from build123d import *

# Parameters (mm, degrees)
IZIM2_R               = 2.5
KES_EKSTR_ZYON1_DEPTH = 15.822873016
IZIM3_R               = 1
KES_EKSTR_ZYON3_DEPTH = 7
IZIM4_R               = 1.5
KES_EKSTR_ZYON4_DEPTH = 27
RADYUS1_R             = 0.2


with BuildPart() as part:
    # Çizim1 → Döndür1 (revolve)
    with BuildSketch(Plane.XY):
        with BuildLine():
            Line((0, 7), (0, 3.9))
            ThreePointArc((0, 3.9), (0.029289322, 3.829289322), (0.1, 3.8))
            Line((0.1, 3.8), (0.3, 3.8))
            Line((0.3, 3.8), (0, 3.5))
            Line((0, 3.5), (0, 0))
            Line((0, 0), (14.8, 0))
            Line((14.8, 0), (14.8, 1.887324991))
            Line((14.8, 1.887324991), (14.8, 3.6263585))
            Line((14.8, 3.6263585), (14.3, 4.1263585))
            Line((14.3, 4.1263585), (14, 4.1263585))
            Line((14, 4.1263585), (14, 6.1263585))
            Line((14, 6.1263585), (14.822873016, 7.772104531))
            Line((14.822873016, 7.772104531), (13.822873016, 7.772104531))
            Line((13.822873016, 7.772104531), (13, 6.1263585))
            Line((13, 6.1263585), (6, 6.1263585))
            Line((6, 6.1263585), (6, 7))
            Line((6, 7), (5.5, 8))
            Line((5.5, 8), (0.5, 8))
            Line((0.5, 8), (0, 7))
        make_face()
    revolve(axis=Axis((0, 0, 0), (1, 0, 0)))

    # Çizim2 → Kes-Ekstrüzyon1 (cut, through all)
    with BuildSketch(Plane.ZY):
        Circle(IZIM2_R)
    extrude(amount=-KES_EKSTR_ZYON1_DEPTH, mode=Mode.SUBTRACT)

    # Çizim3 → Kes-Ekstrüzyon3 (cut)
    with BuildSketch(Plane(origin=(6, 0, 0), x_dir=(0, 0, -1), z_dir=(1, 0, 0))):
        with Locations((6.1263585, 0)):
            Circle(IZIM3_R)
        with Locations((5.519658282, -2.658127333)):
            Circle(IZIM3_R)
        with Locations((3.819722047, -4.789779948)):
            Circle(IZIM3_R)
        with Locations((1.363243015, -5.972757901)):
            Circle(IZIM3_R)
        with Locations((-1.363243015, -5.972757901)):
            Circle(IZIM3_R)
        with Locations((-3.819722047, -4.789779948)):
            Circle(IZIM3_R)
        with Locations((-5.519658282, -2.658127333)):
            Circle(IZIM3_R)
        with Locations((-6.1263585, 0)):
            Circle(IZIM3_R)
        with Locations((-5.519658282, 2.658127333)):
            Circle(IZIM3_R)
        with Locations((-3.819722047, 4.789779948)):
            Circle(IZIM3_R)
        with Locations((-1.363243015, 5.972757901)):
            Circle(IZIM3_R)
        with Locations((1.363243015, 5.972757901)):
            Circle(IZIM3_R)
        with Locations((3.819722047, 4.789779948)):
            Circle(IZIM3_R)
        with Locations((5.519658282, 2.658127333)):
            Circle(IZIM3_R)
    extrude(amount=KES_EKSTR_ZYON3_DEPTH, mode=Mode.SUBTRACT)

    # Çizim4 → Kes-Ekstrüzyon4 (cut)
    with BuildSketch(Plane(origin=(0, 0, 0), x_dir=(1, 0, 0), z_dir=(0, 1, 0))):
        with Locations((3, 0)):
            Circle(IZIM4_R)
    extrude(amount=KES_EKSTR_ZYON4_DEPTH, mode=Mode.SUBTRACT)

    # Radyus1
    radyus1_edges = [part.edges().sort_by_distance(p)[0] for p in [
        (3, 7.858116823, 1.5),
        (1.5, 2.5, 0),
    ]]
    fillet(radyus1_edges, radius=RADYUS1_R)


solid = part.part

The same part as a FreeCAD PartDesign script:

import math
import FreeCAD as App
import Part
import Sketcher
from FreeCAD import Vector
Q = App.Units.Quantity


def edges_at(feature, points):
    """Names of the edges that pass closest to the given points."""
    edges = feature.Shape.Edges
    near = lambda p: min(range(len(edges)), key=lambda i: edges[i].distToShape(Part.Vertex(*p))[0])
    return sorted({f"Edge{near(p) + 1}" for p in points})

doc = App.newDocument("Part")
body = doc.addObject("PartDesign::Body", "Body")

# Sketch on XY plane
sketch1 = body.newObject("Sketcher::SketchObject", "Sketch")
sketch1.AttachmentSupport = (doc.getObject("XY_Plane"), [""])
sketch1.MapMode = "FlatFace"
sketch1.addGeometry([
    Part.LineSegment(Vector(0, 7, 0), Vector(0, 3.9, 0)),  # 0
    Part.ArcOfCircle(Part.Circle(Vector(0.1, 3.9, 0), Vector(0, 0, 1), 0.1), math.radians(180), math.radians(270)),  # 1
    Part.LineSegment(Vector(0.1, 3.8, 0), Vector(0.3, 3.8, 0)),  # 2
    Part.LineSegment(Vector(0.3, 3.8, 0), Vector(0, 3.5, 0)),  # 3
    Part.LineSegment(Vector(0, 3.5, 0), Vector(0, 0, 0)),  # 4
    Part.LineSegment(Vector(0, 0, 0), Vector(14.8, 0, 0)),  # 5
    Part.LineSegment(Vector(14.8, 0, 0), Vector(14.8, 3.63, 0)),  # 6
    Part.LineSegment(Vector(14.8, 3.63, 0), Vector(14.3, 4.13, 0)),  # 7
    Part.LineSegment(Vector(14.3, 4.13, 0), Vector(14, 4.13, 0)),  # 8
    Part.LineSegment(Vector(14, 4.13, 0), Vector(14, 6.13, 0)),  # 9
    Part.LineSegment(Vector(14, 6.13, 0), Vector(14.82, 7.77, 0)),  # 10
    Part.LineSegment(Vector(14.82, 7.77, 0), Vector(13.82, 7.77, 0)),  # 11
    Part.LineSegment(Vector(13.82, 7.77, 0), Vector(13, 6.13, 0)),  # 12
    Part.LineSegment(Vector(13, 6.13, 0), Vector(6, 6.13, 0)),  # 13
    Part.LineSegment(Vector(6, 6.13, 0), Vector(6, 7, 0)),  # 14
    Part.LineSegment(Vector(6, 7, 0), Vector(5.5, 8, 0)),  # 15
    Part.LineSegment(Vector(5.5, 8, 0), Vector(0.5, 8, 0)),  # 16
    Part.LineSegment(Vector(0.5, 8, 0), Vector(0, 7, 0)),  # 17
], False)
sketch1.addConstraint([
    Sketcher.Constraint("Tangent", 0, 2, 1, 1),
    Sketcher.Constraint("Tangent", 1, 2, 2, 1),
    Sketcher.Constraint("Coincident", 2, 2, 3, 1),
    Sketcher.Constraint("Coincident", 3, 2, 4, 1),
    Sketcher.Constraint("Coincident", 4, 2, 5, 1),
    Sketcher.Constraint("Coincident", 5, 2, 6, 1),
    Sketcher.Constraint("Coincident", 6, 2, 7, 1),
    Sketcher.Constraint("Coincident", 7, 2, 8, 1),
    Sketcher.Constraint("Coincident", 8, 2, 9, 1),
    Sketcher.Constraint("Coincident", 9, 2, 10, 1),
    Sketcher.Constraint("Coincident", 10, 2, 11, 1),
    Sketcher.Constraint("Coincident", 11, 2, 12, 1),
    Sketcher.Constraint("Coincident", 12, 2, 13, 1),
    Sketcher.Constraint("Coincident", 13, 2, 14, 1),
    Sketcher.Constraint("Coincident", 14, 2, 15, 1),
    Sketcher.Constraint("Coincident", 15, 2, 16, 1),
    Sketcher.Constraint("Coincident", 16, 2, 17, 1),
    Sketcher.Constraint("Coincident", 17, 2, 0, 1),
    Sketcher.Constraint("Vertical", 0),
    Sketcher.Constraint("Horizontal", 2),
    Sketcher.Constraint("Vertical", 4),
    Sketcher.Constraint("Horizontal", 5),
    Sketcher.Constraint("Vertical", 6),
    Sketcher.Constraint("Horizontal", 8),
    Sketcher.Constraint("Vertical", 9),
    Sketcher.Constraint("Horizontal", 11),
    Sketcher.Constraint("Horizontal", 13),
    Sketcher.Constraint("Vertical", 14),
    Sketcher.Constraint("Horizontal", 16),
    Sketcher.Constraint("Coincident", 4, 2, -1, 1),
    Sketcher.Constraint("PointOnObject", 0, 2, -2),
    Sketcher.Constraint("Perpendicular", 3, 7),
    Sketcher.Constraint("Parallel", 10, 12),
    Sketcher.Constraint("Parallel", 12, 17),
    Sketcher.Constraint("Horizontal", 9, 2, 12, 2),
    Sketcher.Constraint("Horizontal", 14, 2, 17, 2),
    Sketcher.Constraint("Equal", 15, 17),
    Sketcher.Constraint("Radius", 1, Q("0.1 mm")),
    Sketcher.Constraint("DistanceX", 11, 2, 11, 1, Q("1 mm")),
    Sketcher.Constraint("DistanceX", 13, 2, 13, 1, Q("7 mm")),
    Sketcher.Constraint("DistanceX", 16, 2, 16, 1, Q("5 mm")),
    Sketcher.Constraint("DistanceY", 9, 1, 9, 2, Q("2 mm")),
    Sketcher.Constraint("Angle", 3, Q("-135 deg")),
    Sketcher.Constraint("DistanceX", 2, 1, 2, 2, Q("0.2 mm")),
    Sketcher.Constraint("DistanceX", 5, 1, 5, 2, Q("14.8 mm")),
    Sketcher.Constraint("DistanceX", 8, 2, 8, 1, Q("0.3 mm")),
    Sketcher.Constraint("DistanceY", 0, 2, 0, 1, Q("3.1 mm")),
    Sketcher.Constraint("DistanceY", 4, 2, 4, 1, Q("3.5 mm")),
    Sketcher.Constraint("DistanceX", -1, 1, 8, 2, Q("14 mm")),
    Sketcher.Constraint("DistanceY", -1, 1, 15, 2, Q("8 mm")),
    Sketcher.Constraint("Distance", 10, Q("1.84 mm")),
    Sketcher.Constraint("DistanceY", 6, 1, 6, 2, Q("3.626358 mm")),
])
revolution = body.newObject("PartDesign::Revolution", "Revolution")
revolution.Profile = sketch1
revolution.ReferenceAxis = (sketch1, ["H_Axis"])
revolution.Angle = 360

# Sketch on YZ plane
sketch2 = body.newObject("Sketcher::SketchObject", "Sketch001")
sketch2.AttachmentSupport = (doc.getObject("YZ_Plane"), [""])
sketch2.MapMode = "FlatFace"
sketch2.addGeometry(Part.Circle(Vector(0, 0, 0), Vector(0, 0, 1), 2.5), False)
sketch2.addConstraint([
    Sketcher.Constraint("Coincident", 0, 3, -1, 1),
    Sketcher.Constraint("Diameter", 0, Q("5 mm")),
])
pocket1 = body.newObject("PartDesign::Pocket", "Pocket")
pocket1.Profile = sketch2
pocket1.Type = "ThroughAll"
pocket1.Reversed = True

# Sketch on YZ plane
sketch3 = body.newObject("Sketcher::SketchObject", "Sketch002")
sketch3.AttachmentSupport = (doc.getObject("YZ_Plane"), [""])
sketch3.MapMode = "FlatFace"
sketch3.AttachmentOffset = App.Placement(Vector(0, 0, 6), App.Rotation())
sketch3.addGeometry([
    Part.Circle(Vector(0, -6.1, 0), Vector(0, 0, 1), 1),  # 0
    Part.Circle(Vector(-2.7, -5.5, 0), Vector(0, 0, 1), 1),  # 1
    Part.Circle(Vector(-4.8, -3.8, 0), Vector(0, 0, 1), 1),  # 2
    Part.Circle(Vector(-6, -1.4, 0), Vector(0, 0, 1), 1),  # 3
    Part.Circle(Vector(-6, 1.4, 0), Vector(0, 0, 1), 1),  # 4
    Part.Circle(Vector(-4.8, 3.8, 0), Vector(0, 0, 1), 1),  # 5
    Part.Circle(Vector(-2.7, 5.5, 0), Vector(0, 0, 1), 1),  # 6
    Part.Circle(Vector(0, 6.1, 0), Vector(0, 0, 1), 1),  # 7
    Part.Circle(Vector(2.7, 5.5, 0), Vector(0, 0, 1), 1),  # 8
    Part.Circle(Vector(4.8, 3.8, 0), Vector(0, 0, 1), 1),  # 9
    Part.Circle(Vector(6, 1.4, 0), Vector(0, 0, 1), 1),  # 10
    Part.Circle(Vector(6, -1.4, 0), Vector(0, 0, 1), 1),  # 11
    Part.Circle(Vector(4.8, -3.8, 0), Vector(0, 0, 1), 1),  # 12
    Part.Circle(Vector(2.7, -5.5, 0), Vector(0, 0, 1), 1),  # 13
], False)
sketch3.addConstraint([
    Sketcher.Constraint("Equal", 0, 1),
    Sketcher.Constraint("Equal", 1, 2),
    Sketcher.Constraint("Equal", 2, 3),
    Sketcher.Constraint("Equal", 3, 4),
    Sketcher.Constraint("Equal", 4, 5),
    Sketcher.Constraint("Equal", 5, 6),
    Sketcher.Constraint("Equal", 6, 7),
    Sketcher.Constraint("Equal", 7, 8),
    Sketcher.Constraint("Equal", 8, 9),
    Sketcher.Constraint("Equal", 9, 10),
    Sketcher.Constraint("Equal", 10, 11),
    Sketcher.Constraint("Equal", 11, 12),
    Sketcher.Constraint("Equal", 12, 13),
    Sketcher.Constraint("Symmetric", 0, 3, 7, 3, -1, 1),
    Sketcher.Constraint("Symmetric", 1, 3, 8, 3, -1, 1),
    Sketcher.Constraint("Symmetric", 2, 3, 9, 3, -1, 1),
    Sketcher.Constraint("Symmetric", 3, 3, 10, 3, -1, 1),
    Sketcher.Constraint("Symmetric", 4, 3, 11, 3, -1, 1),
    Sketcher.Constraint("Symmetric", 5, 3, 12, 3, -1, 1),
    Sketcher.Constraint("Symmetric", 6, 3, 13, 3, -1, 1),
    Sketcher.Constraint("Symmetric", 6, 3, 8, 3, -2),
    Sketcher.Constraint("Symmetric", 5, 3, 9, 3, -2),
    Sketcher.Constraint("Symmetric", 4, 3, 10, 3, -2),
    Sketcher.Constraint("PointOnObject", 0, 3, -2),
    Sketcher.Constraint("Diameter", 0, Q("2 mm")),
    Sketcher.Constraint("DistanceY", 0, 3, 1, 3, Q("0.6067 mm")),
    Sketcher.Constraint("DistanceY", 1, 3, 4, 3, Q("6.882901 mm")),
    Sketcher.Constraint("DistanceY", 0, 3, -1, 1, Q("6.126359 mm")),
    Sketcher.Constraint("DistanceX", 2, 3, -1, 1, Q("4.78978 mm")),
    Sketcher.Constraint("DistanceY", 2, 3, 3, 3, Q("2.456479 mm")),
    Sketcher.Constraint("DistanceX", 3, 3, 1, 3, Q("3.314631 mm")),
    Sketcher.Constraint("DistanceX", 1, 3, -1, 1, Q("2.658127 mm")),
])
pocket2 = body.newObject("PartDesign::Pocket", "Pocket001")
pocket2.Profile = sketch3
pocket2.Length = 7
pocket2.Reversed = True

# Sketch on XZ plane
sketch4 = body.newObject("Sketcher::SketchObject", "Sketch003")
sketch4.AttachmentSupport = (doc.getObject("XZ_Plane"), [""])
sketch4.MapMode = "FlatFace"
sketch4.addGeometry(Part.Circle(Vector(3, 0, 0), Vector(0, 0, 1), 1.5), False)
sketch4.addConstraint([
    Sketcher.Constraint("PointOnObject", 0, 3, -1),
    Sketcher.Constraint("Diameter", 0, Q("3 mm")),
    Sketcher.Constraint("DistanceX", -1, 1, 0, 3, Q("3 mm")),
])
pocket3 = body.newObject("PartDesign::Pocket", "Pocket002")
pocket3.Profile = sketch4
pocket3.Length = 27
doc.recompute()

fillet = body.newObject("PartDesign::Fillet", "Fillet")
fillet.Base = (pocket3, edges_at(pocket3, [(3, 7.858, 1.5), (1.5, 2.5, 0)]))
fillet.Radius = 0.2

doc.recompute()
